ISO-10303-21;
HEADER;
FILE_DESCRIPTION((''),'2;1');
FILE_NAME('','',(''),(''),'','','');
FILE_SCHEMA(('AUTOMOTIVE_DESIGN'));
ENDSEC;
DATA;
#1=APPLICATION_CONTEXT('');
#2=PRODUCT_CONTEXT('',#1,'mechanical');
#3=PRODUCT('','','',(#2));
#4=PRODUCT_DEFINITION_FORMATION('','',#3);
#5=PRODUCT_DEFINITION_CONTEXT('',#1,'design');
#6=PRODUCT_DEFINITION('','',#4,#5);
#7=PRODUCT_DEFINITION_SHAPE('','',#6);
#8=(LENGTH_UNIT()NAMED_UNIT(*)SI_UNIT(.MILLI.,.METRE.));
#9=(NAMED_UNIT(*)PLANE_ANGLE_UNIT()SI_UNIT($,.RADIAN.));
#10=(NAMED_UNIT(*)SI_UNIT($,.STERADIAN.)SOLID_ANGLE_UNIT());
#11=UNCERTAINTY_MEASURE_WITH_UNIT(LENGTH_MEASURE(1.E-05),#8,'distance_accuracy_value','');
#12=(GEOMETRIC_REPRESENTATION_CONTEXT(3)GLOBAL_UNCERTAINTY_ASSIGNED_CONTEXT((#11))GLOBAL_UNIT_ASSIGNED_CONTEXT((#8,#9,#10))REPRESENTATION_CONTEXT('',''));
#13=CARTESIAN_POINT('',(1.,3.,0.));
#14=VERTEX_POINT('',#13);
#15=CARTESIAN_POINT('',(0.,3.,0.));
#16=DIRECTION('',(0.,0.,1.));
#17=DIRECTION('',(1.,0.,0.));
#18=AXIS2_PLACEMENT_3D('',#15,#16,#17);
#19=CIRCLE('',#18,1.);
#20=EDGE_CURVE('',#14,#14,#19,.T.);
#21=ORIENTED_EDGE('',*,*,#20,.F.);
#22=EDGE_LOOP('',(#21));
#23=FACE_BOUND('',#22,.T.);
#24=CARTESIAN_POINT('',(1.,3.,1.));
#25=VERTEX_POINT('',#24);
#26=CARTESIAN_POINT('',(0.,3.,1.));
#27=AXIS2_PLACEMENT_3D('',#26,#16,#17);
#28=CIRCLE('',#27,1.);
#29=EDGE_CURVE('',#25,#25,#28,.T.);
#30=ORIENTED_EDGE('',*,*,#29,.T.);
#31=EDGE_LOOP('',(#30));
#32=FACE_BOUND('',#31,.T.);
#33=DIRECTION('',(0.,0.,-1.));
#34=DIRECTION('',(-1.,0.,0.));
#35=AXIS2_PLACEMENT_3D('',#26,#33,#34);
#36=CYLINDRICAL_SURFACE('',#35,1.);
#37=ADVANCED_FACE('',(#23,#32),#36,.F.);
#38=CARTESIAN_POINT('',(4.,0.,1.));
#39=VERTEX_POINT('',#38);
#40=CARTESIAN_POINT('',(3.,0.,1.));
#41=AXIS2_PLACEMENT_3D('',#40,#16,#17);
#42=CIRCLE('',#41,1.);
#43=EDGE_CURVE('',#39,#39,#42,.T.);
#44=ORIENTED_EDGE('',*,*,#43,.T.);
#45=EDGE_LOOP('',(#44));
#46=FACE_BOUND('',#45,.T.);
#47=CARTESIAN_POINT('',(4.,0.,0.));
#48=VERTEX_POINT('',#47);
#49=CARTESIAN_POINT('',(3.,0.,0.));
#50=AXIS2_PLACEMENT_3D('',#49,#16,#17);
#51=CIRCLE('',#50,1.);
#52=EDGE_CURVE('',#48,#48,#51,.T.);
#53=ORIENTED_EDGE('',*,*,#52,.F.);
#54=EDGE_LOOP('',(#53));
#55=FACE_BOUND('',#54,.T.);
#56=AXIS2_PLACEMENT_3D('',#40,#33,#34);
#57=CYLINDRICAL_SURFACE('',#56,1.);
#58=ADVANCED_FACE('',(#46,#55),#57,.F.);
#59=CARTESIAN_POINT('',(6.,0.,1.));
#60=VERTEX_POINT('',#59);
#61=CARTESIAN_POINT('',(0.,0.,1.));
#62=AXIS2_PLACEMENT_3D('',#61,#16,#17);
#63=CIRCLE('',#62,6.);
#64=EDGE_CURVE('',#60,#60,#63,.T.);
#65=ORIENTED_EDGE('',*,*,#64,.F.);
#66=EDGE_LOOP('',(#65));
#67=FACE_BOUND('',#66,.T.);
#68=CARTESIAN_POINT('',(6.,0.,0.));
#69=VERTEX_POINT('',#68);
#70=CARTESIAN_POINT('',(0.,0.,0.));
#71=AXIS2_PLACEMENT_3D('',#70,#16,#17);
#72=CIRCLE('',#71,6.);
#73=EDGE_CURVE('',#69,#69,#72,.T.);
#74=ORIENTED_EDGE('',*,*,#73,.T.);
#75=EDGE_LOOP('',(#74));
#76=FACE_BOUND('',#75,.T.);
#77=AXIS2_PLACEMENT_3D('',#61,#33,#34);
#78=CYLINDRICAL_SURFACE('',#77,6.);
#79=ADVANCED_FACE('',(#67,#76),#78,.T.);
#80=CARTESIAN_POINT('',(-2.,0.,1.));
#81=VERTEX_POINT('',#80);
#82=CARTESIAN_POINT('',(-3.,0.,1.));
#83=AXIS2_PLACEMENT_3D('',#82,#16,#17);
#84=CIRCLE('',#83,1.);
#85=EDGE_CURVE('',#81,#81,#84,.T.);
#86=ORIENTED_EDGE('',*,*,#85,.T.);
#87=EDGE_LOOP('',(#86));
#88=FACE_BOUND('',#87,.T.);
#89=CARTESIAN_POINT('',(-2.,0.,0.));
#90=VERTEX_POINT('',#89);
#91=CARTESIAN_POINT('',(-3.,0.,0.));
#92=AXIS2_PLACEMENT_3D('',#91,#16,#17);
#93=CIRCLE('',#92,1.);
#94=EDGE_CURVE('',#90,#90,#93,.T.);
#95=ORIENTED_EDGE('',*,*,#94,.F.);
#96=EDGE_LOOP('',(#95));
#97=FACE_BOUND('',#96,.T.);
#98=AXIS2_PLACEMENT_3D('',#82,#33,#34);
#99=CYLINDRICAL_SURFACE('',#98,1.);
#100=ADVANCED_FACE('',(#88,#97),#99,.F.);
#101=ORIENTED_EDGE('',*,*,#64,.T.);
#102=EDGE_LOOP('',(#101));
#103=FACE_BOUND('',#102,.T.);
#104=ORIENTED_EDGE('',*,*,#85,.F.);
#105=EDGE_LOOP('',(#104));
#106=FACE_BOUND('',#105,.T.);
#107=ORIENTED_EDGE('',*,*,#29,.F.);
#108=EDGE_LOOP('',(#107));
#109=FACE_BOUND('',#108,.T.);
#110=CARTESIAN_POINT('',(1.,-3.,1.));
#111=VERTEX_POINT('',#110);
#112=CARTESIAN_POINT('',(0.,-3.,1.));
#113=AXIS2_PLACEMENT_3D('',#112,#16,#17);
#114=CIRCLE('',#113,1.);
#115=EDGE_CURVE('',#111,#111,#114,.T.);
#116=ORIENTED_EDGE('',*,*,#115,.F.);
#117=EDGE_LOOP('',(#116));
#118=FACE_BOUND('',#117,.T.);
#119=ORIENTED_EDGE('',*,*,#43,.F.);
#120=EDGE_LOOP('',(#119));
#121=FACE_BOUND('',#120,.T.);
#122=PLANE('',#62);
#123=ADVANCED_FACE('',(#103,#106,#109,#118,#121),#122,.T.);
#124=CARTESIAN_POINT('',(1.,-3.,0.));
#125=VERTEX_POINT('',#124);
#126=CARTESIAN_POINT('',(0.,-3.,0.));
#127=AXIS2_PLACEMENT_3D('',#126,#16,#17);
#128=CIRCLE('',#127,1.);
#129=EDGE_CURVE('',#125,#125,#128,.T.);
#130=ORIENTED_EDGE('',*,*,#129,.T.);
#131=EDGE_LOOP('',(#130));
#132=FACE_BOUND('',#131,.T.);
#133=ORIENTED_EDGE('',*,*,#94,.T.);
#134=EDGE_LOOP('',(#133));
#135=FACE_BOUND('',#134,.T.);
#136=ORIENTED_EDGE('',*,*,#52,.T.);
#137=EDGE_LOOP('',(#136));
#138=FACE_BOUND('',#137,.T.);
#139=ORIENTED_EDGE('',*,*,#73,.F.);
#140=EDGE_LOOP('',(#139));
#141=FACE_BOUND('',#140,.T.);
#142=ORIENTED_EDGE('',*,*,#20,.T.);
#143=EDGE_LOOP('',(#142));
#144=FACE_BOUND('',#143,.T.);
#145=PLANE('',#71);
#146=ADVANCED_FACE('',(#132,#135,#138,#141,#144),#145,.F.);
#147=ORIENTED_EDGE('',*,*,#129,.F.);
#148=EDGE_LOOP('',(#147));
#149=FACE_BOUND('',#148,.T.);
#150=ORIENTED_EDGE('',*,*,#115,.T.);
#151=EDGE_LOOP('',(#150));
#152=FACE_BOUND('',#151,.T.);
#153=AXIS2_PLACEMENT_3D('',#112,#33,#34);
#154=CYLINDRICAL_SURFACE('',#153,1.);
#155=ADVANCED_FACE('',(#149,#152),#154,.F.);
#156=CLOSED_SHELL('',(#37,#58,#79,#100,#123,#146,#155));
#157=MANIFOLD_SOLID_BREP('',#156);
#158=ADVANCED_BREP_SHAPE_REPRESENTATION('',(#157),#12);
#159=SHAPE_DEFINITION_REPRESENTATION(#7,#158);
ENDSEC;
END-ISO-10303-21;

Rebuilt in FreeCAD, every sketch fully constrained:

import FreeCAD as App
import Part
import Sketcher
Q = App.Units.Quantity

doc = App.newDocument("Part")
body = doc.addObject("PartDesign::Body", "Body")

# Sketch on XY plane
sketch1 = body.newObject("Sketcher::SketchObject", "Sketch")
sketch1.AttachmentSupport = (doc.getObject("XY_Plane"), [""])
sketch1.MapMode = "FlatFace"
sketch1.addGeometry([
    Part.Circle(App.Vector(0, 0, 0), App.Vector(0, 0, 1), 6),  # 0
    Part.Circle(App.Vector(0, -3, 0), App.Vector(0, 0, 1), 1),  # 1
    Part.Circle(App.Vector(-3, 0, 0), App.Vector(0, 0, 1), 1),  # 2
    Part.Circle(App.Vector(3, 0, 0), App.Vector(0, 0, 1), 1),  # 3
    Part.Circle(App.Vector(0, 3, 0), App.Vector(0, 0, 1), 1),  # 4
], False)
sketch1.addConstraint([
    Sketcher.Constraint("Coincident", 0, 3, -1, 1),
    Sketcher.Constraint("Equal", 1, 2),
    Sketcher.Constraint("Equal", 2, 3),
    Sketcher.Constraint("Equal", 3, 4),
    Sketcher.Constraint("Symmetric", 2, 3, 3, 3, -1, 1),
    Sketcher.Constraint("Symmetric", 1, 3, 4, 3, -1, 1),
    Sketcher.Constraint("PointOnObject", 1, 3, -2),
    Sketcher.Constraint("PointOnObject", 2, 3, -1),
    Sketcher.Constraint("Diameter", 0, Q("12 mm")),
    Sketcher.Constraint("Diameter", 1, Q("2 mm")),
    Sketcher.Constraint("DistanceY", 1, 3, -1, 1, Q("3 mm")),
    Sketcher.Constraint("DistanceX", 2, 3, -1, 1, Q("3 mm")),
])
pad1 = body.newObject("PartDesign::Pad", "Pad")
pad1.Profile = sketch1
pad1.Length = 1

doc.recompute()
